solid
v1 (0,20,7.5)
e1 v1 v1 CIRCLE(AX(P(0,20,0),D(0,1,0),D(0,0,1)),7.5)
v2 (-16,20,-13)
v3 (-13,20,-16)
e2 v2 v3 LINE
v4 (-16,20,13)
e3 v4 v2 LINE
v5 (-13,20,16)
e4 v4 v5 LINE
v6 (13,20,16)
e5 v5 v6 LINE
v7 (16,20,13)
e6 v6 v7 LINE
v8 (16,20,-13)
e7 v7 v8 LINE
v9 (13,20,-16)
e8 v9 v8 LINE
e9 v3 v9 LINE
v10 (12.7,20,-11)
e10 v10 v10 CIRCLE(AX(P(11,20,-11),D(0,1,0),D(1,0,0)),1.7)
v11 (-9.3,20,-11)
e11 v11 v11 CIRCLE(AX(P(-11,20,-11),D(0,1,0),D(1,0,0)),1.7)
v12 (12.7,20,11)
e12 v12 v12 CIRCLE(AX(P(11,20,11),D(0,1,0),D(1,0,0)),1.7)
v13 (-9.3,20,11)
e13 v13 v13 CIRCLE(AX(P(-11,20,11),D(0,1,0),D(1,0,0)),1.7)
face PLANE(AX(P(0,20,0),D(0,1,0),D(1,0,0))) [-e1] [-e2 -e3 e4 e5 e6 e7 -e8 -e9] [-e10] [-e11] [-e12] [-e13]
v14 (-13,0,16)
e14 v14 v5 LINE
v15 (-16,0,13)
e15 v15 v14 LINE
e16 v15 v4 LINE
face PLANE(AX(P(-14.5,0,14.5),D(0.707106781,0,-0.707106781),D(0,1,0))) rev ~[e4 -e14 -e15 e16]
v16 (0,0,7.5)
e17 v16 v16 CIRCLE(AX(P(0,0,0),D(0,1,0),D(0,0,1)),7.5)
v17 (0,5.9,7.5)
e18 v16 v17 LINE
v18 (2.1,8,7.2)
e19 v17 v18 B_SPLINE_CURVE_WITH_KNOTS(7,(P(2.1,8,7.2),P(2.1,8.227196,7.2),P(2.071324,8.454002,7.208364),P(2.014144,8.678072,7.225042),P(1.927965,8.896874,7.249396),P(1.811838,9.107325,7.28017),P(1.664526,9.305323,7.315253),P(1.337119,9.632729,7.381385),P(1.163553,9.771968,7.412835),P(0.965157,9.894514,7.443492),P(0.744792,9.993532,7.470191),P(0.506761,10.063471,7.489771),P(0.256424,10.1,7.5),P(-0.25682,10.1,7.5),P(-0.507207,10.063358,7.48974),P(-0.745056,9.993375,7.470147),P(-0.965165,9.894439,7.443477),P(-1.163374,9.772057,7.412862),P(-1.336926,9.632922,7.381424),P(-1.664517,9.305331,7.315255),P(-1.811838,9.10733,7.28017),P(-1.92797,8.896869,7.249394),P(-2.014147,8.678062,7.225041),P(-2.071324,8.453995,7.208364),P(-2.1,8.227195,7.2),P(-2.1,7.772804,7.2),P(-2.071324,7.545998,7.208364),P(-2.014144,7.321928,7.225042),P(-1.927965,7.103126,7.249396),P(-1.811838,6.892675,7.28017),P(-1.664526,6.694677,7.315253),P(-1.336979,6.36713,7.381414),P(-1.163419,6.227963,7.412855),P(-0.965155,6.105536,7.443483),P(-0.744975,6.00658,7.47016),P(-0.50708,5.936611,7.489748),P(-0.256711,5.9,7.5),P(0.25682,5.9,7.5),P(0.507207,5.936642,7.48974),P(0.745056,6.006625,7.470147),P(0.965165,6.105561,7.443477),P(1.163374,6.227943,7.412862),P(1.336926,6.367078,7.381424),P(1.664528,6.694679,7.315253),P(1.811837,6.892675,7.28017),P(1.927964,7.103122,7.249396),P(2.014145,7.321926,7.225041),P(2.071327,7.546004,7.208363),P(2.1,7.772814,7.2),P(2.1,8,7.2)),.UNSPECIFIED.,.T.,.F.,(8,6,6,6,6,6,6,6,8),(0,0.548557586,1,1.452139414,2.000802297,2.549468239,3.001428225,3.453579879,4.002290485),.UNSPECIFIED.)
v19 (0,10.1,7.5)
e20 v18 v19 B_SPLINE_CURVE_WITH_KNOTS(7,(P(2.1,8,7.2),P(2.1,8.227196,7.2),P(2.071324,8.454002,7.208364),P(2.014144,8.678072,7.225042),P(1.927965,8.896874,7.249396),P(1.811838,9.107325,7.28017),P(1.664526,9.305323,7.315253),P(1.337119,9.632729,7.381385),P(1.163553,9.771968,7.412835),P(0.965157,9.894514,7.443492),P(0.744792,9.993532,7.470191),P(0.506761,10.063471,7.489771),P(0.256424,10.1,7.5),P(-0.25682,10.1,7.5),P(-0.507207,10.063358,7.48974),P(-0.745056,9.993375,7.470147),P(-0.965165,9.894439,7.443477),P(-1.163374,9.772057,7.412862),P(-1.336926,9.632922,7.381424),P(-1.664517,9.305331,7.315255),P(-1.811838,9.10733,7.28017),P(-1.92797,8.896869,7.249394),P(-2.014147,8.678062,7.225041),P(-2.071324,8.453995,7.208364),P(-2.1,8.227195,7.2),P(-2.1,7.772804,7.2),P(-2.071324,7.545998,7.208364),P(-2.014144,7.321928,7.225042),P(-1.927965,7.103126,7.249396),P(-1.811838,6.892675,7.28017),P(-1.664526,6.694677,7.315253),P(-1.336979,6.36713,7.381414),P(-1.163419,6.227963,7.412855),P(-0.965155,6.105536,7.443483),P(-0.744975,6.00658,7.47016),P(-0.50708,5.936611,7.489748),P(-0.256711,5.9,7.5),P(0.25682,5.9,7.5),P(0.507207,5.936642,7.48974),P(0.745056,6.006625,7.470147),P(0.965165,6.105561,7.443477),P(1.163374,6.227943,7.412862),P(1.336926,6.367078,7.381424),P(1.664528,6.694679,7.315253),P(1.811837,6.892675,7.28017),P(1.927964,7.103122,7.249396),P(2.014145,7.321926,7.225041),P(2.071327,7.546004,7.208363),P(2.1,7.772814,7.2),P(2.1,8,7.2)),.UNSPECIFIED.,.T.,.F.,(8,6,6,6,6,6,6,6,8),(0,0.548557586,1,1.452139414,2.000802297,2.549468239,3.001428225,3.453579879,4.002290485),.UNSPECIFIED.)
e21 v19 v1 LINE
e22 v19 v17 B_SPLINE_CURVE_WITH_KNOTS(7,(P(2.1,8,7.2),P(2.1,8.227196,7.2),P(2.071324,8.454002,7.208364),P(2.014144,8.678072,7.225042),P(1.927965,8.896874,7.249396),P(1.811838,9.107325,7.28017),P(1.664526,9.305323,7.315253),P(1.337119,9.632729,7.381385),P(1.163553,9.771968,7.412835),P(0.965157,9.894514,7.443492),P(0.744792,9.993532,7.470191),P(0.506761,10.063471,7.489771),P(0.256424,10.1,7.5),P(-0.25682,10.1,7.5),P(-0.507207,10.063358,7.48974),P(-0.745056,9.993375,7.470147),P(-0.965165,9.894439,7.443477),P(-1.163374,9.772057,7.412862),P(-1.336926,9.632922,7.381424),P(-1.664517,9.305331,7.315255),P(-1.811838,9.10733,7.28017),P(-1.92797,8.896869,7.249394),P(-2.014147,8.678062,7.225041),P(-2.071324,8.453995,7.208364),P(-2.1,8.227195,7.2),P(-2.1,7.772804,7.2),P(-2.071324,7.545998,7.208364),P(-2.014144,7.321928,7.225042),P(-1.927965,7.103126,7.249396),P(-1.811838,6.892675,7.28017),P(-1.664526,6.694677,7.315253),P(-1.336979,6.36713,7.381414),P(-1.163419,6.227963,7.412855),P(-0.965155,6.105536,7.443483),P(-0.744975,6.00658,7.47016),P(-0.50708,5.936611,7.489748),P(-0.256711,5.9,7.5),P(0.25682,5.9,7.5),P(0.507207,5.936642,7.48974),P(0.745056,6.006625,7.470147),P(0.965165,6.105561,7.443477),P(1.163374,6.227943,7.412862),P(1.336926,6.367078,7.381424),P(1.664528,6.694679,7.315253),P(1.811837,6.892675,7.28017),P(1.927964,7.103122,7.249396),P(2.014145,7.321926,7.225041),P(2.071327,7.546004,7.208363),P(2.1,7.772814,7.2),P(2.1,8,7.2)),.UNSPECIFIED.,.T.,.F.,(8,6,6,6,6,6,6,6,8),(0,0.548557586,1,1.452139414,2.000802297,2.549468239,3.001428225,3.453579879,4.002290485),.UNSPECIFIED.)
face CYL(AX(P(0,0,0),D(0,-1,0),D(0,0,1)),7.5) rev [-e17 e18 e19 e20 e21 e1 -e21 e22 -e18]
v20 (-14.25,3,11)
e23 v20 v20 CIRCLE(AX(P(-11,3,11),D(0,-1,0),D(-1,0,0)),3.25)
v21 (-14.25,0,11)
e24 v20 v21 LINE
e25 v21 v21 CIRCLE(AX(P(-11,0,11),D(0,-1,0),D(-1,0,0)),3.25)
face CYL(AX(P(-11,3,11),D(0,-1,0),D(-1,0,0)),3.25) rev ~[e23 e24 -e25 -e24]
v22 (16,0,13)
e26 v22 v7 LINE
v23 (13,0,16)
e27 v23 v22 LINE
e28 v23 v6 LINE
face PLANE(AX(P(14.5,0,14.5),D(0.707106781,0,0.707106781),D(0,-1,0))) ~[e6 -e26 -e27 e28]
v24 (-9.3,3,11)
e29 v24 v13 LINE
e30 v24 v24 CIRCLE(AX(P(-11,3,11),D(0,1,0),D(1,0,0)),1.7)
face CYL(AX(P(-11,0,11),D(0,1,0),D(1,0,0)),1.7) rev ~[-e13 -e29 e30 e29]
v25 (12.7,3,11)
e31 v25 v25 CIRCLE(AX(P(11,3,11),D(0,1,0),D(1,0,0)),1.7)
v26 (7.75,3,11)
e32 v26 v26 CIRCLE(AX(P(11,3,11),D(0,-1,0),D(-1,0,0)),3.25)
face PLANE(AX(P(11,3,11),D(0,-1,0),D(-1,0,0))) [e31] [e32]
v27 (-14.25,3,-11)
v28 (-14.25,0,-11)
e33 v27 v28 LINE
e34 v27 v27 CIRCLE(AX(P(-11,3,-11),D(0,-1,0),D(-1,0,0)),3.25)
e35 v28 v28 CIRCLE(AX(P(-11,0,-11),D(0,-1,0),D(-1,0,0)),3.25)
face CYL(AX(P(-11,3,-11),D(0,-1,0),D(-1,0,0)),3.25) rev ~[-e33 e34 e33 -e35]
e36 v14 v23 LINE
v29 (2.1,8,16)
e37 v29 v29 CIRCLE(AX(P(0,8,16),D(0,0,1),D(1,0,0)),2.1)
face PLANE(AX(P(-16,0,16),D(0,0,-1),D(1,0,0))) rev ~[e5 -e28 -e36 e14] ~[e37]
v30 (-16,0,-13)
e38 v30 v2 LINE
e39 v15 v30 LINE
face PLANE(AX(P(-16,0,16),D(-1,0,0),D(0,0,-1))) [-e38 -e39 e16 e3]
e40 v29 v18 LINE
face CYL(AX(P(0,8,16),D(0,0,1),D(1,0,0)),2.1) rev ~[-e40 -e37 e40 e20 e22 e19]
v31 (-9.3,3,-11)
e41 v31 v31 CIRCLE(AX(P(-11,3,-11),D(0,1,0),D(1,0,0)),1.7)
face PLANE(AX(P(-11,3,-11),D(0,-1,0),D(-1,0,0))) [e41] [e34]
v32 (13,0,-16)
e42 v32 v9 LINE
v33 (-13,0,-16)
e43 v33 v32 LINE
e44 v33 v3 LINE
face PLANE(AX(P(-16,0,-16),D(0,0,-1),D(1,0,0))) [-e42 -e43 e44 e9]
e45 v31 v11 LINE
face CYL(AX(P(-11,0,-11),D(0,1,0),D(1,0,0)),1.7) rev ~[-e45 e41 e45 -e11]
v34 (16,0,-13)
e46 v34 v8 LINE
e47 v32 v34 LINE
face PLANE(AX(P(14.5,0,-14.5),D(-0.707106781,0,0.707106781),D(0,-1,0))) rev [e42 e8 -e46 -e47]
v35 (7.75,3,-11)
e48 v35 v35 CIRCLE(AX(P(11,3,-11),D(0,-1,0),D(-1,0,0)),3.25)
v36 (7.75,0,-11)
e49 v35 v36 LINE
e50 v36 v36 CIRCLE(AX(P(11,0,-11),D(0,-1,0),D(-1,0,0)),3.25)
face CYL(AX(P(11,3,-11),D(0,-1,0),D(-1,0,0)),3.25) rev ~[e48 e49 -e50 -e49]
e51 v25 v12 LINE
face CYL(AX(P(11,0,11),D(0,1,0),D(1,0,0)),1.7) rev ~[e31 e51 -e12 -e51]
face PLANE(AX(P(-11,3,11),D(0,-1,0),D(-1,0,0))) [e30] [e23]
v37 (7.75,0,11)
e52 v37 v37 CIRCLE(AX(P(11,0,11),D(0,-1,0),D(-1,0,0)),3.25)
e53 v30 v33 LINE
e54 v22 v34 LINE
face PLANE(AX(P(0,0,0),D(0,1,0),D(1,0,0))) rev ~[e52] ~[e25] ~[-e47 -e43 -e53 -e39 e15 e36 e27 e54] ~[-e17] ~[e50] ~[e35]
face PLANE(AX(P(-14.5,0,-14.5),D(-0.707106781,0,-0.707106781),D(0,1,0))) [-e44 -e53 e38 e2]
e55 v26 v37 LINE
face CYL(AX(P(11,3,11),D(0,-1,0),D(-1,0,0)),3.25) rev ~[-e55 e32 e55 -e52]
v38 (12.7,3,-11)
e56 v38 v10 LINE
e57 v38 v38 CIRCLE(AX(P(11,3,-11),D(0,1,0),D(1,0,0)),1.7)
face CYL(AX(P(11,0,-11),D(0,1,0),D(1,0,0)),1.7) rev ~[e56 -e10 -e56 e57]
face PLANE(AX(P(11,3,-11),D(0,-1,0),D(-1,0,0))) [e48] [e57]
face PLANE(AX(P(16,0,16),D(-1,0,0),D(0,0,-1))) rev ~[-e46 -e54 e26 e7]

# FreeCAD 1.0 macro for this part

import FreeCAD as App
import Part
import Sketcher
from FreeCAD import Vector
Q = App.Units.Quantity


def edges_at(feature, points):
    """Names of the edges that pass closest to the given points."""
    edges = feature.Shape.Edges
    near = lambda p: min(range(len(edges)), key=lambda i: edges[i].distToShape(Part.Vertex(*p))[0])
    return sorted({f"Edge{near(p) + 1}" for p in points})


def add_polygon(sketch, points):
    """Adds a closed chain of lines whose ends are joined by coincident constraints."""
    first, n = sketch.GeometryCount, len(points)
    for a, b in zip(points, points[1:] + points[:1]):
        sketch.addGeometry(Part.LineSegment(App.Vector(*a, 0), App.Vector(*b, 0)), False)
    for i in range(n):
        sketch.addConstraint(Sketcher.Constraint("Coincident", first + i, 2, first + (i + 1) % n, 1))

doc = App.newDocument("Part")
body = doc.addObject("PartDesign::Body", "Body")

sketch1 = doc.addObject("Sketcher::SketchObject", "Sketch")
body.addObject(sketch1)
sketch1.AttachmentSupport = (doc.XZ_Plane, [""])
sketch1.MapMode = "FlatFace"
add_polygon(sketch1, [(-16, -16), (-16, 16), (16, 16), (16, -16)])
sketch1.addGeometry(Part.Circle(Vector(0, 0, 0), Vector(0, 0, 1), 8), False)
sketch1.addConstraint([
    Sketcher.Constraint("Vertical", 0),
    Sketcher.Constraint("Horizontal", 1),
    Sketcher.Constraint("Vertical", 2),
    Sketcher.Constraint("Horizontal", 3),
    Sketcher.Constraint("Coincident", 4, 3, -1, 1),
    Sketcher.Constraint("Symmetric", 0, 2, 2, 2, -1, 1),
    Sketcher.Constraint("Equal", 3, 0),
    Sketcher.Constraint("Diameter", 4, Q("15 mm")),
    Sketcher.Constraint("DistanceX", 1, 1, 1, 2, Q("32 mm")),
])
pad1 = doc.addObject("PartDesign::Pad", "Pad")
body.addObject(pad1)
pad1.Profile = sketch1
pad1.Length = 20
pad1.Reversed = True

sketch2 = doc.addObject("Sketcher::SketchObject", "Sketch001")
body.addObject(sketch2)
sketch2.AttachmentSupport = (doc.XZ_Plane, [""])
sketch2.MapMode = "FlatFace"
sketch2.addGeometry([
    Part.Circle(Vector(11, 11, 0), Vector(0, 0, 1), 1.7),
    Part.Circle(Vector(-11, 11, 0), Vector(0, 0, 1), 1.7),
    Part.Circle(Vector(-11, -11, 0), Vector(0, 0, 1), 1.7),
    Part.Circle(Vector(11, -11, 0), Vector(0, 0, 1), 1.7),
], False)
sketch2.addConstraint([
    Sketcher.Constraint("Equal", 0, 1),
    Sketcher.Constraint("Equal", 1, 2),
    Sketcher.Constraint("Equal", 2, 3),
    Sketcher.Constraint("Symmetric", 0, 3, 2, 3, -1, 1),
    Sketcher.Constraint("Symmetric", 1, 3, 3, 3, -1, 1),
    Sketcher.Constraint("Symmetric", 0, 3, 1, 3, -2),
    Sketcher.Constraint("Diameter", 0, Q("3.4 mm")),
    Sketcher.Constraint("DistanceX", -1, 1, 0, 3, Q("11 mm")),
    Sketcher.Constraint("DistanceY", -1, 1, 0, 3, Q("11 mm")),
])
doc.recompute()
hole = doc.addObject("PartDesign::Hole", "Hole")
body.addObject(hole)
hole.Profile = sketch2
hole.ThreadType = "None"
hole.Diameter = 3.4
hole.DepthType = "ThroughAll"
hole.HoleCutType = "Counterbore"
hole.HoleCutDiameter = 6.5
hole.HoleCutDepth = 3

sketch3 = doc.addObject("Sketcher::SketchObject", "Sketch002")
body.addObject(sketch3)
sketch3.AttachmentSupport = (doc.XY_Plane, [""])
sketch3.MapMode = "FlatFace"
sketch3.AttachmentOffset = App.Placement(Vector(0, 0, 16), App.Rotation())
sketch3.addGeometry(Part.Circle(Vector(0, 8, 0), Vector(0, 0, 1), 2.1), False)
sketch3.addConstraint([
    Sketcher.Constraint("PointOnObject", 0, 3, -2),
    Sketcher.Constraint("Diameter", 0, Q("4.2 mm")),
    Sketcher.Constraint("DistanceY", -1, 1, 0, 3, Q("8 mm")),
])
pocket1 = doc.addObject("PartDesign::Pocket", "Pocket")
body.addObject(pocket1)
pocket1.Profile = sketch3
pocket1.Type = "UpToFirst"
doc.recompute()

chamfer = doc.addObject("PartDesign::Chamfer", "Chamfer")
body.addObject(chamfer)
chamfer.Base = (pocket1, edges_at(pocket1, [
    (16, 10, 16),
    (-16, 10, 16),
    (-16, 10, -16),
    (16, 10, -16),
]))
chamfer.Size = 3

doc.recompute()
